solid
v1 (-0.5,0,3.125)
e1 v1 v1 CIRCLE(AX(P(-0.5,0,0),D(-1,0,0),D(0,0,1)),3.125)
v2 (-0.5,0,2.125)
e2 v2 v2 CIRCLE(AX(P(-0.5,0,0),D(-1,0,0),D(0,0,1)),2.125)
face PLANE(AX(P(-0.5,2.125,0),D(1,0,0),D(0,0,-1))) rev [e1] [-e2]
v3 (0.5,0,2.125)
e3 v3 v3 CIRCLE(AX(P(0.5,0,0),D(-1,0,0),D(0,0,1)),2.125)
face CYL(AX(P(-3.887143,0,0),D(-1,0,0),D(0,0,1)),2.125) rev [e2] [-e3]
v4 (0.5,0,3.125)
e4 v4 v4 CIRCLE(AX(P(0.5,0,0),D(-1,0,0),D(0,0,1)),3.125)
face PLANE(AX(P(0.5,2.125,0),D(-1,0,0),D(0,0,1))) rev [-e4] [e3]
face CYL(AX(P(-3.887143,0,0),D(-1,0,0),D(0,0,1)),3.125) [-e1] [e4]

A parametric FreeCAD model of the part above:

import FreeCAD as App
import Part
import Sketcher

V = App.Vector
Q = App.Units.Quantity

doc = App.newDocument("Part")
body = doc.addObject("PartDesign::Body", "Body")

sketch1 = body.newObject("Sketcher::SketchObject", "Sketch")
sketch1.AttachmentSupport = (doc.getObject("XY_Plane"), [""])
sketch1.MapMode = "FlatFace"
sketch1.addGeometry([
    Part.LineSegment(V(-0.5, 3.1, 0), V(-0.5, 2.1, 0)),
    Part.LineSegment(V(-0.5, 2.1, 0), V(0.5, 2.1, 0)),
    Part.LineSegment(V(0.5, 2.1, 0), V(0.5, 3.1, 0)),
    Part.LineSegment(V(0.5, 3.1, 0), V(-0.5, 3.1, 0)),
], False)
sketch1.addConstraint([
    Sketcher.Constraint("Coincident", 0, 2, 1, 1),
    Sketcher.Constraint("Coincident", 1, 2, 2, 1),
    Sketcher.Constraint("Coincident", 2, 2, 3, 1),
    Sketcher.Constraint("Coincident", 3, 2, 0, 1),
    Sketcher.Constraint("Vertical", 0),
    Sketcher.Constraint("Horizontal", 1),
    Sketcher.Constraint("Vertical", 2),
    Sketcher.Constraint("Horizontal", 3),
    Sketcher.Constraint("Equal", 3, 0),
    Sketcher.Constraint("DistanceX", 1, 1, 1, 2, Q("1 mm")),
    Sketcher.Constraint("DistanceX", 0, 2, -1, 1, Q("0.5 mm")),
    Sketcher.Constraint("DistanceY", -1, 1, 0, 2, Q("2.125 mm")),
])
revolution = body.newObject("PartDesign::Revolution", "Revolution")
revolution.Profile = sketch1
revolution.ReferenceAxis = (sketch1, ["H_Axis"])
revolution.Angle = 360

doc.recompute()
